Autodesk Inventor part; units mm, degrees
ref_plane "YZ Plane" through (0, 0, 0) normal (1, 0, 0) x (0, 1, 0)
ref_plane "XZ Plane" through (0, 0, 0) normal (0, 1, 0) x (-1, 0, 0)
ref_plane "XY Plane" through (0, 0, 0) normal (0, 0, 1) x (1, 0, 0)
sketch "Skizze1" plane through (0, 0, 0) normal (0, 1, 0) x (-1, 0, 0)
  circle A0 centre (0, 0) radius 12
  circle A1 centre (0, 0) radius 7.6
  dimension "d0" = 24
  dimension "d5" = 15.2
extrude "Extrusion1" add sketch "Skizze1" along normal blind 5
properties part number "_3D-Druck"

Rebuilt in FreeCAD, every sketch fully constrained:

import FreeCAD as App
import Part
import Sketcher
Q = App.Units.Quantity

doc = App.newDocument("Part")
body = doc.addObject("PartDesign::Body", "Body")

# Sketch on XZ plane
sketch1 = doc.addObject("Sketcher::SketchObject", "Sketch")
body.addObject(sketch1)
sketch1.AttachmentSupport = (doc.XZ_Plane, [""])
sketch1.MapMode = "FlatFace"
sketch1.addGeometry([
    Part.Circle(App.Vector(0, 0, 0), App.Vector(0, 0, 1), 12),
    Part.Circle(App.Vector(0, 0, 0), App.Vector(0, 0, 1), 8),
], False)
sketch1.addConstraint([
    Sketcher.Constraint("Coincident", 0, 3, -1, 1),
    Sketcher.Constraint("Coincident", 1, 3, -1, 1),
    Sketcher.Constraint("Diameter", 0, Q("24 mm")),
    Sketcher.Constraint("Diameter", 1, Q("15.2 mm")),
])
pad1 = doc.addObject("PartDesign::Pad", "Pad")
body.addObject(pad1)
pad1.Profile = sketch1
pad1.Length = 5
pad1.Reversed = True

doc.recompute()
